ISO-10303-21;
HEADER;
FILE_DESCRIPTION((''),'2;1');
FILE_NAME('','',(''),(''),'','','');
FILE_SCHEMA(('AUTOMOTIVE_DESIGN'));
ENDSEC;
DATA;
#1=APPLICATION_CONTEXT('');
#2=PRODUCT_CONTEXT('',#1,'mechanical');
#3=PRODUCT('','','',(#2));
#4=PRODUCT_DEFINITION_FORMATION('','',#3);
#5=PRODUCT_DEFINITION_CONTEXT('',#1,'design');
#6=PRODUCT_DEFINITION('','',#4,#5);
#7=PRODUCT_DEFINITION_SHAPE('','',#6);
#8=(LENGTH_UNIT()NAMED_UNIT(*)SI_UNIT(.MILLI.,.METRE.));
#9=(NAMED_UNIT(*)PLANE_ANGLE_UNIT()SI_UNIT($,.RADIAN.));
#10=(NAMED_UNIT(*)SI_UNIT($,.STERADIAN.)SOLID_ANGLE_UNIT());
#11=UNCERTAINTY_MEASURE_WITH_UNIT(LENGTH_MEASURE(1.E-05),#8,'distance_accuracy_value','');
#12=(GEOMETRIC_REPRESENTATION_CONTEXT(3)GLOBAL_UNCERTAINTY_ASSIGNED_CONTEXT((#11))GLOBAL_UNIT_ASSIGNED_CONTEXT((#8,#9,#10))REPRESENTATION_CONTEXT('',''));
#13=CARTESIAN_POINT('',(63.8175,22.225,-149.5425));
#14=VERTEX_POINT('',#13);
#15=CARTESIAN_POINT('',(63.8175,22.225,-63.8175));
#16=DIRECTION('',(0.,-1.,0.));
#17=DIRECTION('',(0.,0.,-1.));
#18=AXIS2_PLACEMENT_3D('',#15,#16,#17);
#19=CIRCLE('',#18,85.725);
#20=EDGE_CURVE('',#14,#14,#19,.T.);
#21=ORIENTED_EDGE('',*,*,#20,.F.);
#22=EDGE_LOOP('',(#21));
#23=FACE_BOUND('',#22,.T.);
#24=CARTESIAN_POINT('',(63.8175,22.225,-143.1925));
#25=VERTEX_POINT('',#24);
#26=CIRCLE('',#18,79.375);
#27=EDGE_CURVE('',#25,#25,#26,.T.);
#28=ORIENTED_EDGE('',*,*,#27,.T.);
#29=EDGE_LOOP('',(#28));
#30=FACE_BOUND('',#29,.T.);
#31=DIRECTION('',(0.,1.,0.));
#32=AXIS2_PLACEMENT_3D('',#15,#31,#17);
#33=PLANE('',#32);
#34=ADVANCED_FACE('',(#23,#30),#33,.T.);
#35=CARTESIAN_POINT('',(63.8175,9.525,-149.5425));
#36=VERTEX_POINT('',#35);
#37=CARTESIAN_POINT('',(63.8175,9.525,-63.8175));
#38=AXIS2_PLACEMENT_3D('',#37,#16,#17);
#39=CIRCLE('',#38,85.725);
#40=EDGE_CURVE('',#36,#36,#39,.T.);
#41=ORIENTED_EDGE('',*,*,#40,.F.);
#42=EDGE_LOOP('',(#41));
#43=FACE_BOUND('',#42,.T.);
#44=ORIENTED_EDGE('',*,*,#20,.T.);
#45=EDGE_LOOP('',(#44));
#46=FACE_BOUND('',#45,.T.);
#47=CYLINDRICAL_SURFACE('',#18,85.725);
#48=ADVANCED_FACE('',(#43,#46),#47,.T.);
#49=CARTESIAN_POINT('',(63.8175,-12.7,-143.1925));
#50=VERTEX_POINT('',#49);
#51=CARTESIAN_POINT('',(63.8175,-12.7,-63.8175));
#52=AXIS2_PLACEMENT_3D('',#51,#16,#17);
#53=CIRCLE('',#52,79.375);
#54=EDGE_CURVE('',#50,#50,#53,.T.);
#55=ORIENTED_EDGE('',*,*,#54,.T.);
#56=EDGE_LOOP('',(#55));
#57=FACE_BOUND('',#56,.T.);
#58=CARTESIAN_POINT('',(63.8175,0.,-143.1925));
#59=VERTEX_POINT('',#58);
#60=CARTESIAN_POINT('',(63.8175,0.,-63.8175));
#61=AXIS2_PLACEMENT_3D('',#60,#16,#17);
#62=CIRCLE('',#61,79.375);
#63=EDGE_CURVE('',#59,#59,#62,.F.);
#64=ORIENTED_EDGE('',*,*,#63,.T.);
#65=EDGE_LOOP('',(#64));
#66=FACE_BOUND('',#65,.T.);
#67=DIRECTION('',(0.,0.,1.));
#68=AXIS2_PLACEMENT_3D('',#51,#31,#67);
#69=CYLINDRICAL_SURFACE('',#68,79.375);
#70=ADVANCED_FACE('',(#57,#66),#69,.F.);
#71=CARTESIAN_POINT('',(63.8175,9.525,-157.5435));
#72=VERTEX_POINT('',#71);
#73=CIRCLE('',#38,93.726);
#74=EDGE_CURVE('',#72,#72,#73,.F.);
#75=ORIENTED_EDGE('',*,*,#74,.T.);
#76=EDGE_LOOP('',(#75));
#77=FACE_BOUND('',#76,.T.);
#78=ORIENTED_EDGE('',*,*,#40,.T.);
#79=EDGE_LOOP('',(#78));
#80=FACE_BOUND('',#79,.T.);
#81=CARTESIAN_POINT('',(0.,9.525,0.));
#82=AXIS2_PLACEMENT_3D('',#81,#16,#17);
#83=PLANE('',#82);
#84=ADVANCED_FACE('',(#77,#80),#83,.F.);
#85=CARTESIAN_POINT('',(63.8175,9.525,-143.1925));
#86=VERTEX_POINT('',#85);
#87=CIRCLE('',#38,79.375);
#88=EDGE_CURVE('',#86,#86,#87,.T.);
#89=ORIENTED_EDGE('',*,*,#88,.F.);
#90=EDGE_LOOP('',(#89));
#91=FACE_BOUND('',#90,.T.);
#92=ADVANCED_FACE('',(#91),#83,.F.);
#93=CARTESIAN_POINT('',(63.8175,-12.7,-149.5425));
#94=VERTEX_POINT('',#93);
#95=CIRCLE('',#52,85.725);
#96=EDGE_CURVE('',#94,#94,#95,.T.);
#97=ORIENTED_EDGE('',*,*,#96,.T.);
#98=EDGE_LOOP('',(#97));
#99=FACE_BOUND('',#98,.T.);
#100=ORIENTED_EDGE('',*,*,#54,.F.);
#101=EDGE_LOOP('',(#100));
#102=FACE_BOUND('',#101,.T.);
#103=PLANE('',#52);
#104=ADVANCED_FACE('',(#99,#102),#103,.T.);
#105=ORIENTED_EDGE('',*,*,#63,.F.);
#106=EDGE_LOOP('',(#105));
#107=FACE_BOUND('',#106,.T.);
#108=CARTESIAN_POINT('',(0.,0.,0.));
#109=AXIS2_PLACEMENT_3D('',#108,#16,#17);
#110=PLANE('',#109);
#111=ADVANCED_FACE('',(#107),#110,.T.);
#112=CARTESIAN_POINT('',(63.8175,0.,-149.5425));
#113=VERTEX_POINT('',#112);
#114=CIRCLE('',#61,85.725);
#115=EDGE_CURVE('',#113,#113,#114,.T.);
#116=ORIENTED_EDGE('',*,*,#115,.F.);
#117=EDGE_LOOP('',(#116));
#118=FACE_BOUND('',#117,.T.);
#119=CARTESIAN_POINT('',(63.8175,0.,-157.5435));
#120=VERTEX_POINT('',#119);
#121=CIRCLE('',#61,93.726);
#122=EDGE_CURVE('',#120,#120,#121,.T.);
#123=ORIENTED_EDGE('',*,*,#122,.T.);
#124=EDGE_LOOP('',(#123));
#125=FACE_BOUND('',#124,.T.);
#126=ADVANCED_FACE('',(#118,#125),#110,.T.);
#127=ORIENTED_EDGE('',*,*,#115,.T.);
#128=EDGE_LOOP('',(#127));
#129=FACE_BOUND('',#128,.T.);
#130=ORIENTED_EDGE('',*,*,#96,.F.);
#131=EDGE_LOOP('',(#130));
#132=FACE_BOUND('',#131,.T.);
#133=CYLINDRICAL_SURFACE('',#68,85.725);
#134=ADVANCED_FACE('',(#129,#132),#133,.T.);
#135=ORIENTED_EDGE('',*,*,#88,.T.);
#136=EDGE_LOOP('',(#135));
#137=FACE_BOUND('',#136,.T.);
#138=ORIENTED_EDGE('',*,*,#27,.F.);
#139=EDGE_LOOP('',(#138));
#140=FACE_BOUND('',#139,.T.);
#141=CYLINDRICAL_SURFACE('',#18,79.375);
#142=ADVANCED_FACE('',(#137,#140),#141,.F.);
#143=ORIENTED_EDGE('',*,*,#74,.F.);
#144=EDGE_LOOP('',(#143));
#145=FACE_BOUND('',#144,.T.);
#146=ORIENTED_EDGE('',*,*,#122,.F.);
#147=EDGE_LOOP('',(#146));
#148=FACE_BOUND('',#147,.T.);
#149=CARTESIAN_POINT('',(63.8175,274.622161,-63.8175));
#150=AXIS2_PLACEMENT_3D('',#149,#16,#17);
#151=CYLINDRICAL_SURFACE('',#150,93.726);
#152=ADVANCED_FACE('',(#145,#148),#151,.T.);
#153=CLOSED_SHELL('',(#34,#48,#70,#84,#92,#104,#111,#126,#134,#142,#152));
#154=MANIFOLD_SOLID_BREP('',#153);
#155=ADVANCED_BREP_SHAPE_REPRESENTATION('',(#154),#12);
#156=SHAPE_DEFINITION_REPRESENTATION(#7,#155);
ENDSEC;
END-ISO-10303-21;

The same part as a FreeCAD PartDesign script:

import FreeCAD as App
import Part
import Sketcher

V = App.Vector
Q = App.Units.Quantity

doc = App.newDocument("Part")
params = doc.addObject("Spreadsheet::Sheet", "Params")
for row, (alias, value) in enumerate([
    ("sketch1_width", "5.025 in"),
    ("pad1_length", "0.375 in"),
    ("sketch2_diameter", "7.38 in"),
    ("pad2_length", "0.375 in"),
    ("sketch3_diameter", "6.75 in"),
    ("sketch3_diameter2", "6.25 in"),
    ("pad3_length", "0.5 in"),
], start=1):
    params.set(f"A{row}", alias)
    params.set(f"B{row}", "=" + value)
    params.setAlias(f"B{row}", alias)

body = doc.addObject("PartDesign::Body", "Body")

# Sketch on XZ plane
sketch1 = body.newObject("Sketcher::SketchObject", "Sketch")
sketch1.AttachmentSupport = (doc.getObject("XZ_Plane"), [""])
sketch1.MapMode = "FlatFace"
sketch1.addGeometry(Part.LineSegment(V(0, -128, 0), V(0, 0, 0)), False)
sketch1.addGeometry(Part.LineSegment(V(0, 0, 0), V(128, 0, 0)), False)
sketch1.addGeometry(Part.LineSegment(V(128, 0, 0), V(128, -128, 0)), False)
sketch1.addGeometry(Part.LineSegment(V(128, -128, 0), V(0, -128, 0)), False)
sketch1.addConstraint(Sketcher.Constraint("Coincident", 0, 2, 1, 1))
sketch1.addConstraint(Sketcher.Constraint("Coincident", 1, 2, 2, 1))
sketch1.addConstraint(Sketcher.Constraint("Coincident", 2, 2, 3, 1))
sketch1.addConstraint(Sketcher.Constraint("Coincident", 3, 2, 0, 1))
sketch1.addConstraint(Sketcher.Constraint("Vertical", 0))
sketch1.addConstraint(Sketcher.Constraint("Horizontal", 1))
sketch1.addConstraint(Sketcher.Constraint("Vertical", 2))
sketch1.addConstraint(Sketcher.Constraint("Horizontal", 3))
sketch1.addConstraint(Sketcher.Constraint("Coincident", 0, 2, -1, 1))
sketch1.addConstraint(Sketcher.Constraint("Equal", 3, 0))
sketch1.addConstraint(Sketcher.Constraint("DistanceX", 1, 1, 1, 2, Q("5.025 in")))
sketch1.setExpression("Constraints[10]", "Params.sketch1_width")
pad1 = body.newObject("PartDesign::Pad", "Pad")
pad1.Profile = sketch1
pad1.setExpression("Length", "Params.pad1_length")
pad1.Reversed = True

# Sketch on XZ plane
sketch2 = body.newObject("Sketcher::SketchObject", "Sketch001")
sketch2.AttachmentSupport = (doc.getObject("XZ_Plane"), [""])
sketch2.MapMode = "FlatFace"
sketch2.addGeometry(Part.Circle(V(64, -64, 0), V(0, 0, 1), 94), False)
sketch2.addConstraint(Sketcher.Constraint("Diameter", 0, Q("7.38 in")))
sketch2.addConstraint(Sketcher.Constraint("DistanceX", -1, 1, 0, 3, Q("2.5125 in")))
sketch2.addConstraint(Sketcher.Constraint("DistanceY", 0, 3, -1, 1, Q("2.5125 in")))
sketch2.setExpression("Constraints[0]", "Params.sketch2_diameter")
pad2 = body.newObject("PartDesign::Pad", "Pad001")
pad2.Profile = sketch2
pad2.setExpression("Length", "Params.pad2_length")
pad2.Reversed = True

# Sketch on XZ plane
sketch3 = body.newObject("Sketcher::SketchObject", "Sketch002")
sketch3.AttachmentSupport = (doc.getObject("XZ_Plane"), [""])
sketch3.MapMode = "FlatFace"
sketch3.addGeometry(Part.Circle(V(64, -64, 0), V(0, 0, 1), 86), False)
sketch3.addGeometry(Part.Circle(V(64, -64, 0), V(0, 0, 1), 79), False)
sketch3.addConstraint(Sketcher.Constraint("Coincident", 1, 3, 0, 3))
sketch3.addConstraint(Sketcher.Constraint("Diameter", 0, Q("6.75 in")))
sketch3.addConstraint(Sketcher.Constraint("Diameter", 1, Q("6.25 in")))
sketch3.addConstraint(Sketcher.Constraint("DistanceX", -1, 1, 0, 3, Q("2.5125 in")))
sketch3.addConstraint(Sketcher.Constraint("DistanceY", 0, 3, -1, 1, Q("2.5125 in")))
sketch3.setExpression("Constraints[1]", "Params.sketch3_diameter")
sketch3.setExpression("Constraints[2]", "Params.sketch3_diameter2")
pad3 = body.newObject("PartDesign::Pad", "Pad002")
pad3.Profile = sketch3
pad3.setExpression("Length", "Params.pad3_length")
doc.recompute()

datumplane = body.newObject("PartDesign::Plane", "DatumPlane")
datumplane.AttachmentSupport = (doc.getObject("XZ_Plane"), [""])
datumplane.MapMode = "FlatFace"
datumplane.AttachmentOffset = App.Placement(V(0, 0, -0.1875 * 25.4), App.Rotation())
mirrored = body.newObject("PartDesign::Mirrored", "Mirrored")
mirrored.Originals = [pad3]
mirrored.MirrorPlane = (datumplane, [""])
body.Tip = mirrored

doc.recompute()
